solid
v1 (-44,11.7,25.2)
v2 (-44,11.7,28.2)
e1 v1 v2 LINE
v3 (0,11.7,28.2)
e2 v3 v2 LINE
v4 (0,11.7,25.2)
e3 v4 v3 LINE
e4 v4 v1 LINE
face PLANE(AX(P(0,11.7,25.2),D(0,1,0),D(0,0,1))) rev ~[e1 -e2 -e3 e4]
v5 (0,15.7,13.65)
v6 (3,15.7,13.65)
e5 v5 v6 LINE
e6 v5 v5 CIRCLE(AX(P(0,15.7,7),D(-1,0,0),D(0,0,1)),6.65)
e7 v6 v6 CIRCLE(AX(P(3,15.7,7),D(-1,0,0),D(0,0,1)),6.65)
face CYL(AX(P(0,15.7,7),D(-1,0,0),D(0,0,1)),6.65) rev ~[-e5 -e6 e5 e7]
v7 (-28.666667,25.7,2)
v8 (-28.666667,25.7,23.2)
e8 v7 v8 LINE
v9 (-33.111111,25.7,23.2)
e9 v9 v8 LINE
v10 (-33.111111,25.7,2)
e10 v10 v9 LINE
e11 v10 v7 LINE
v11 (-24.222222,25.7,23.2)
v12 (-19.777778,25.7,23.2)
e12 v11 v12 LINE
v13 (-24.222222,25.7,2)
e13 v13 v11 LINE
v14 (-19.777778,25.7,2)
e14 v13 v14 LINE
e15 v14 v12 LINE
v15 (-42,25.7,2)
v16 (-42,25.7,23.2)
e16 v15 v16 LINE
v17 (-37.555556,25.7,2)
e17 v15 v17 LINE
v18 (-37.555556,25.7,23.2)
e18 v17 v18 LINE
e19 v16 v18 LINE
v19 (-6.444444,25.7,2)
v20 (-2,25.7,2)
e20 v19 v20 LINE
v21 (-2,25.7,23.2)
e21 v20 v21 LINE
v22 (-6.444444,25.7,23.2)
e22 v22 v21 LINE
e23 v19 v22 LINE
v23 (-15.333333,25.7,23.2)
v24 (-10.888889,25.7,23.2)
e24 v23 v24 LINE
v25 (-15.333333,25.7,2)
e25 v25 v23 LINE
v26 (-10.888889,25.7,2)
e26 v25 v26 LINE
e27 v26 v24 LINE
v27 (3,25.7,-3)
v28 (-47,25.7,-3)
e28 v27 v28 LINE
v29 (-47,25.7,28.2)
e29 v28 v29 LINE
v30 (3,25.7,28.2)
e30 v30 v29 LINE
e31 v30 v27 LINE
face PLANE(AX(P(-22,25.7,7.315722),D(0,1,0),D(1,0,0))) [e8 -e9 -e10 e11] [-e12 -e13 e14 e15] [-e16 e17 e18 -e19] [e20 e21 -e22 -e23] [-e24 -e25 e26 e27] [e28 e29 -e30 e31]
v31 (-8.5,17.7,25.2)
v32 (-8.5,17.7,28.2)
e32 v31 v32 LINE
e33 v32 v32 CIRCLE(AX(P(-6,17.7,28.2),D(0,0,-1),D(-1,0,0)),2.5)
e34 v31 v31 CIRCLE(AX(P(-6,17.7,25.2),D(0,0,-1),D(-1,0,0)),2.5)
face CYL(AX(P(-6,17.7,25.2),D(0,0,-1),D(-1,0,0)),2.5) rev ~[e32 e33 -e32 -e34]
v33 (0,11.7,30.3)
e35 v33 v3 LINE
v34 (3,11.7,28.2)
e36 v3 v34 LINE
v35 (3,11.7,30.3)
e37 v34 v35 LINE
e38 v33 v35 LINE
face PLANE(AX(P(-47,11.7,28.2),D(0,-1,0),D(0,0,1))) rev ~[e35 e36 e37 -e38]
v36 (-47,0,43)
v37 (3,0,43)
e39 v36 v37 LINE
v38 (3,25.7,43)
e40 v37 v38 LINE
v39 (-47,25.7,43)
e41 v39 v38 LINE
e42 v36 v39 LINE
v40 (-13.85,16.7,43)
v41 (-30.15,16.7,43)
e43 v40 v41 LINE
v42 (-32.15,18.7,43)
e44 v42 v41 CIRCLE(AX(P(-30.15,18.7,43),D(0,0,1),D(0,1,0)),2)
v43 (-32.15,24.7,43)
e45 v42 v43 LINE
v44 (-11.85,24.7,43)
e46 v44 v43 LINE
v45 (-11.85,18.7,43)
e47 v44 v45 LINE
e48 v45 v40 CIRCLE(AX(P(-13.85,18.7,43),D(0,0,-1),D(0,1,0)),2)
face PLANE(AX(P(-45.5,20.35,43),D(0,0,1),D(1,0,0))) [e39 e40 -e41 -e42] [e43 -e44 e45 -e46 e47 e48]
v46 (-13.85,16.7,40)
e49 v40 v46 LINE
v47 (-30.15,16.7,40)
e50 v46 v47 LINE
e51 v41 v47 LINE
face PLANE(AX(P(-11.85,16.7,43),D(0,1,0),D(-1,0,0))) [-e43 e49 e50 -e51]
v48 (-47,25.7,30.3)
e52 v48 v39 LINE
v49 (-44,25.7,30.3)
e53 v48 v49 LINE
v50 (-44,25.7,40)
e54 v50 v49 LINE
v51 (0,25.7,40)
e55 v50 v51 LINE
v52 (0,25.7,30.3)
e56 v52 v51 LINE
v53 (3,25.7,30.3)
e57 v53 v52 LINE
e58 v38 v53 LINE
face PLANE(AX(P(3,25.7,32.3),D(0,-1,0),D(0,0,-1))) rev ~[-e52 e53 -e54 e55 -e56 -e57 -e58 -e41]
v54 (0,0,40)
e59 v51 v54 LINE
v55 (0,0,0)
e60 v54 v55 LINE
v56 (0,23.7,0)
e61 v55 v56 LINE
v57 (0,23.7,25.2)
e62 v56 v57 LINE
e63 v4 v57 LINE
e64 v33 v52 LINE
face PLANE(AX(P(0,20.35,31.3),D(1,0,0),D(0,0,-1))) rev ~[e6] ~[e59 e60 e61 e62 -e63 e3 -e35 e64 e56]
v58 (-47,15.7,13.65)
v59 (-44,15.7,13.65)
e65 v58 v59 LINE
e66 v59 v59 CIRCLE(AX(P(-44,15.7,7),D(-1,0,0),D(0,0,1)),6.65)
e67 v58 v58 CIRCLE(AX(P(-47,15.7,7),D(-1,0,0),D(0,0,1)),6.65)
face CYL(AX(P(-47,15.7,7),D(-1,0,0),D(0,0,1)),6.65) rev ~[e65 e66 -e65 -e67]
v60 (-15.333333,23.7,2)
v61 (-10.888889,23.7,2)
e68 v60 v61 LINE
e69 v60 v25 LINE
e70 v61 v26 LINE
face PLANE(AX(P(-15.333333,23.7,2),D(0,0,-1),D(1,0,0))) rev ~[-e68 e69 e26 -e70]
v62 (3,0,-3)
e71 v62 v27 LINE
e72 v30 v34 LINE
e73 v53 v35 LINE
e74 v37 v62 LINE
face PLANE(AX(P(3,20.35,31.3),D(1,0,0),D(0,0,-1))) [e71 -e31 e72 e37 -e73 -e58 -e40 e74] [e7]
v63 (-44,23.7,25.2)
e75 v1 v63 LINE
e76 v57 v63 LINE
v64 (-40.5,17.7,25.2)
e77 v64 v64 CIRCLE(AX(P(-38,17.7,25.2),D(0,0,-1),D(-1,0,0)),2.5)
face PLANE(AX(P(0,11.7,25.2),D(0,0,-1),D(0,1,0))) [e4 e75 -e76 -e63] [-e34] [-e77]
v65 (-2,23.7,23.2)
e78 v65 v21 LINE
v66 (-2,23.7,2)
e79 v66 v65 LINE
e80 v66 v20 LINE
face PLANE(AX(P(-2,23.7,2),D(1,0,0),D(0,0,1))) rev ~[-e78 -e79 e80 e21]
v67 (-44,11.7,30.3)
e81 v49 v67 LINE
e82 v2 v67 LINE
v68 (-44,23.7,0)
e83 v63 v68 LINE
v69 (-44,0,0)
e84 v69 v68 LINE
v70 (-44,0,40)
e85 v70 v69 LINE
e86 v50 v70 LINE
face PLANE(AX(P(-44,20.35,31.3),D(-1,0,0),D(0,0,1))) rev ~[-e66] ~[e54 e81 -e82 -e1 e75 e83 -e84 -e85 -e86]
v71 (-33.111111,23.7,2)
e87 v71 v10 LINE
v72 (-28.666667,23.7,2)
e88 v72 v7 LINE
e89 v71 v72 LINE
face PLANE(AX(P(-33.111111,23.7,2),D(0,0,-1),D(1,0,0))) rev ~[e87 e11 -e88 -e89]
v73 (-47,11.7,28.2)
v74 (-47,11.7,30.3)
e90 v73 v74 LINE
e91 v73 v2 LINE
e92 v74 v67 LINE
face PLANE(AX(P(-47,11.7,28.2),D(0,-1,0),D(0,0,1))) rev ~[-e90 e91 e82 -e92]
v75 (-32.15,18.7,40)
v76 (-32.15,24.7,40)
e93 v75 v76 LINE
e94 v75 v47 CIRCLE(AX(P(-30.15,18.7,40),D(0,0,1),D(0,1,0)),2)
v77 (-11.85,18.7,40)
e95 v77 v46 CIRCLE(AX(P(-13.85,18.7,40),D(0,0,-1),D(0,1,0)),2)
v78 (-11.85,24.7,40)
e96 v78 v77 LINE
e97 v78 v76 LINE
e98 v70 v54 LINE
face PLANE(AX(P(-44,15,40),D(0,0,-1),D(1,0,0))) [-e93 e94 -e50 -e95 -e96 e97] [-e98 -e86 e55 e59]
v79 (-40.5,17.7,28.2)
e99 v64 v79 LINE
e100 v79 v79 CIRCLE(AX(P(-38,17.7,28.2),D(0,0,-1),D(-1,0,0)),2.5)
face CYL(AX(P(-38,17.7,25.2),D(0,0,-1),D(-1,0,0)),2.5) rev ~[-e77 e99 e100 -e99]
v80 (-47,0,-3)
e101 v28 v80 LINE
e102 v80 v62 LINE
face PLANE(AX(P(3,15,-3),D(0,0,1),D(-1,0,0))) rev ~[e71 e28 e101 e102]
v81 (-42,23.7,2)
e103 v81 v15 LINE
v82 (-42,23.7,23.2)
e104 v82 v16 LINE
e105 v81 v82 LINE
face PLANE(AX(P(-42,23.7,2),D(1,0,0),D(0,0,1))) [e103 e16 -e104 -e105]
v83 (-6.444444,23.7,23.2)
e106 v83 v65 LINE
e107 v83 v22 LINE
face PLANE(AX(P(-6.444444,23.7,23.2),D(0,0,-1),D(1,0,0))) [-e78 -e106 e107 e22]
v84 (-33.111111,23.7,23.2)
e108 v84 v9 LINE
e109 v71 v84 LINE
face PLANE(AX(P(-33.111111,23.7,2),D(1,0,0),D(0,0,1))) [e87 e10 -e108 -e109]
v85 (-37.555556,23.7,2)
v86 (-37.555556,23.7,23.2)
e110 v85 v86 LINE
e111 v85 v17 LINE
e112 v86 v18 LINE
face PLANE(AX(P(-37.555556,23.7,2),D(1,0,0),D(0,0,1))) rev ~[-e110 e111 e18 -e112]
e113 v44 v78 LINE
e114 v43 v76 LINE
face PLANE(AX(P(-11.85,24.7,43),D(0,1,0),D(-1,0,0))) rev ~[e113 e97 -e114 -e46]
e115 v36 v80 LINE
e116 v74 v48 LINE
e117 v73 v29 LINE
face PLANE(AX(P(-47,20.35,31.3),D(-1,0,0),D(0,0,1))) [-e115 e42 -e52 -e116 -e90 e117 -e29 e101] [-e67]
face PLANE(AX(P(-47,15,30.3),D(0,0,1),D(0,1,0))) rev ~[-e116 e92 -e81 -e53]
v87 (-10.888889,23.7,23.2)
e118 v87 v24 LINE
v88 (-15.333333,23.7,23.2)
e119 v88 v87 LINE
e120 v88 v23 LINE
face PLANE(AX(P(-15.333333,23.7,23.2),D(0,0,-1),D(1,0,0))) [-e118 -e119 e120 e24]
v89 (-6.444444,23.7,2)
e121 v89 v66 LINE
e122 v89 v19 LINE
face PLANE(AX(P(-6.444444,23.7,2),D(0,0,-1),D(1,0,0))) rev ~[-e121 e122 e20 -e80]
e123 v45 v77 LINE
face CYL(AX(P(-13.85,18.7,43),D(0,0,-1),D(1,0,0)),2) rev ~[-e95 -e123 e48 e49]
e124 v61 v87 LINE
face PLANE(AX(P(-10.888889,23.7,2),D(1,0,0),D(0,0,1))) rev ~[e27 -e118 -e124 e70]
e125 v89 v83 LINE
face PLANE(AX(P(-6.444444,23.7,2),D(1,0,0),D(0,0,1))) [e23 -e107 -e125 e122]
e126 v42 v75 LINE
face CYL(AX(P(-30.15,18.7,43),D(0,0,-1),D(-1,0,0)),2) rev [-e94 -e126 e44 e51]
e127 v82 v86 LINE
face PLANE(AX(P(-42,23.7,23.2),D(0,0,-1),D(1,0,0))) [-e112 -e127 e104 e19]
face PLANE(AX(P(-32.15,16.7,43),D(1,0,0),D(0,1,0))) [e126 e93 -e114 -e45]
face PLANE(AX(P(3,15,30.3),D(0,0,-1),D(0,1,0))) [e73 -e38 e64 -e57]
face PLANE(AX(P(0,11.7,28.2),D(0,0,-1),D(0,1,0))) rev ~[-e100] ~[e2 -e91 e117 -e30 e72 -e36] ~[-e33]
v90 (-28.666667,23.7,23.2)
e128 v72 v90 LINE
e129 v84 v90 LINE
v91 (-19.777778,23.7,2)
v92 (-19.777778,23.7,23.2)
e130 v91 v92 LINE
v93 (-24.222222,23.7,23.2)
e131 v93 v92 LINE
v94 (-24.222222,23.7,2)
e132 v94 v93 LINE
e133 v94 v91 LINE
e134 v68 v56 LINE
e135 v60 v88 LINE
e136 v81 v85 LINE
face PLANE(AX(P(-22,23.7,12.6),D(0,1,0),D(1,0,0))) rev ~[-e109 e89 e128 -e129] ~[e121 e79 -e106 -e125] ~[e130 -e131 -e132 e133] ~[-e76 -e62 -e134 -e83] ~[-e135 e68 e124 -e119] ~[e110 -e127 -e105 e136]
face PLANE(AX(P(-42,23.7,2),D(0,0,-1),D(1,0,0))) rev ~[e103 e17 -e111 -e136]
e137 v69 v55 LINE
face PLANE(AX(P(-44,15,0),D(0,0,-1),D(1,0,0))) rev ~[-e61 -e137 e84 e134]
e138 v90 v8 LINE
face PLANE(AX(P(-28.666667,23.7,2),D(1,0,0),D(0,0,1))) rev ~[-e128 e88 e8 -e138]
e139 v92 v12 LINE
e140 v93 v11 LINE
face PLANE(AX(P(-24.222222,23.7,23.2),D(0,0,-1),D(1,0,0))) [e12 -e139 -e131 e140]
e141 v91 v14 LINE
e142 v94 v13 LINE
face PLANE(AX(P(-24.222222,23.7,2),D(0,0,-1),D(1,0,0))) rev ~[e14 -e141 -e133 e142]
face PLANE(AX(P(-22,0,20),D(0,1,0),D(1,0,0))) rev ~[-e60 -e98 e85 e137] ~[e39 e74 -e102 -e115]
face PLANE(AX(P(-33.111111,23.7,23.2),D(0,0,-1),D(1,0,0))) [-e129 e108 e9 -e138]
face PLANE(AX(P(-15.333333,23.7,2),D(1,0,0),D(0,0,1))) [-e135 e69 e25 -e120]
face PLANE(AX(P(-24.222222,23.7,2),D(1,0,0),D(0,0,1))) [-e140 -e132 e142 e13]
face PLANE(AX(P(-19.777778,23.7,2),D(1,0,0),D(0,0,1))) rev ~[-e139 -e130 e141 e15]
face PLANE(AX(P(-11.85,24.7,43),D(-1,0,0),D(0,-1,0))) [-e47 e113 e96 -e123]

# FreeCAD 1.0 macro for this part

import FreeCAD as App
import Part
import Sketcher
Q = App.Units.Quantity


def edges_at(feature, points):
    """Names of the edges that pass closest to the given points."""
    edges = feature.Shape.Edges
    near = lambda p: min(range(len(edges)), key=lambda i: edges[i].distToShape(Part.Vertex(*p))[0])
    return sorted({f"Edge{near(p) + 1}" for p in points})


def add_polygon(sketch, points):
    """Adds a closed chain of lines whose ends are joined by coincident constraints."""
    first, n = sketch.GeometryCount, len(points)
    for a, b in zip(points, points[1:] + points[:1]):
        sketch.addGeometry(Part.LineSegment(App.Vector(*a, 0), App.Vector(*b, 0)), False)
    for i in range(n):
        sketch.addConstraint(Sketcher.Constraint("Coincident", first + i, 2, first + (i + 1) % n, 1))

doc = App.newDocument("Part")
params = doc.addObject("Spreadsheet::Sheet", "Params")
for row, (alias, value) in enumerate([
    ("sketch1_width", "50 mm"),
    ("sketch1_width2", "44 mm"),
    ("sketch1_height", "46 mm"),
    ("sketch1_height2", "40 mm"),
    ("pad1_length", "15 mm"),
    ("sketch2_width", "44 mm"),
    ("sketch2_height", "3 mm"),
    ("pad2_length", "10.7 mm"),
    ("sketch3_height", "8 mm"),
    ("sketch3_width", "20.3 mm"),
    ("sketch4_width", "3 mm"),
    ("sketch4_height", "10.7 mm"),
    ("pad3_length", "10.7 mm"),
    ("sketch5_width", "3 mm"),
    ("sketch5_width2", "44 mm"),
    ("sketch5_height", "28.2 mm"),
    ("sketch5_height2", "31.2 mm"),
    ("pad4_length", "10.7 mm"),
    ("sketch6_diameter", "13.3 mm"),
    ("sketch7_diameter", "13.3 mm"),
    ("sketch8_width", "50 mm"),
    ("sketch8_height", "31.2 mm"),
    ("pad5_length", "2 mm"),
    ("sketch9_width", "12 mm"),
    ("sketch9_height", "3 mm"),
    ("pad6_length", "44 mm"),
    ("sketch10_diameter", "5 mm"),
    ("sketch11_diameter", "5 mm"),
    ("fillet_radius", "2 mm"),
    ("sketch12_height", "2 mm"),
    ("sketch12_width", "10.7 mm"),
    ("pad7_length", "3 mm"),
    ("sketch13_width", "3.3 mm"),
    ("sketch13_height", "2.1 mm"),
    ("pocket6_length", "50 mm"),
    ("sketch14_height", "2 mm"),
    ("sketch14_width", "10.7 mm"),
    ("pad8_length", "3 mm"),
    ("sketch15_height", "21.2 mm"),
    ("sketch16_height", "21.2 mm"),
    ("sketch17_height", "21.2 mm"),
    ("sketch18_height", "21.2 mm"),
    ("sketch19_height", "21.2 mm"),
], start=1):
    params.set(f"A{row}", alias)
    params.set(f"B{row}", "=" + value)
    params.setAlias(f"B{row}", alias)

body = doc.addObject("PartDesign::Body", "Body")

sketch1 = body.newObject("Sketcher::SketchObject", "Sketch")
sketch1.AttachmentSupport = (doc.getObject("XZ_Plane"), [""])
sketch1.MapMode = "FlatFace"
add_polygon(sketch1, [(-47, -3), (-47, 43), (3, 43), (3, -3)])
add_polygon(sketch1, [(0, 40), (-44, 40), (-44, 0), (0, 0)])
sketch1.addConstraint([
    Sketcher.Constraint("Vertical", 0),
    Sketcher.Constraint("Horizontal", 1),
    Sketcher.Constraint("Vertical", 2),
    Sketcher.Constraint("Horizontal", 3),
    Sketcher.Constraint("Horizontal", 4),
    Sketcher.Constraint("Vertical", 5),
    Sketcher.Constraint("Horizontal", 6),
    Sketcher.Constraint("Vertical", 7),
    Sketcher.Constraint("Coincident", 6, 2, -1, 1),
    Sketcher.Constraint("DistanceX", 1, 1, 1, 2, Q("50 mm")),
    Sketcher.Constraint("DistanceX", 4, 2, 4, 1, Q("44 mm")),
    Sketcher.Constraint("DistanceY", 0, 1, 0, 2, Q("46 mm")),
    Sketcher.Constraint("DistanceY", 5, 2, 5, 1, Q("40 mm")),
    Sketcher.Constraint("DistanceX", 0, 2, -1, 1, Q("47 mm")),
    Sketcher.Constraint("DistanceY", -1, 1, 0, 2, Q("43 mm")),
])
sketch1.setExpression("Constraints[17]", "Params.sketch1_width")
sketch1.setExpression("Constraints[18]", "Params.sketch1_width2")
sketch1.setExpression("Constraints[19]", "Params.sketch1_height")
sketch1.setExpression("Constraints[20]", "Params.sketch1_height2")
pad1 = body.newObject("PartDesign::Pad", "Pad")
pad1.Profile = sketch1
pad1.setExpression("Length", "Params.pad1_length")
pad1.Reversed = True

sketch2 = body.newObject("Sketcher::SketchObject", "Sketch001")
sketch2.AttachmentSupport = (doc.getObject("XZ_Plane"), [""])
sketch2.MapMode = "FlatFace"
sketch2.AttachmentOffset = App.Placement(App.Vector(0, 0, -15), App.Rotation())
add_polygon(sketch2, [(-44, 40), (-44, 43), (0, 43), (0, 40)])
sketch2.addConstraint([
    Sketcher.Constraint("Vertical", 0),
    Sketcher.Constraint("Horizontal", 1),
    Sketcher.Constraint("Vertical", 2),
    Sketcher.Constraint("Horizontal", 3),
    Sketcher.Constraint("PointOnObject", 1, 2, -2),
    Sketcher.Constraint("DistanceX", 1, 1, 1, 2, Q("44 mm")),
    Sketcher.Constraint("DistanceY", 0, 1, 0, 2, Q("3 mm")),
    Sketcher.Constraint("DistanceY", -1, 1, 0, 2, Q("43 mm")),
])
sketch2.setExpression("Constraints[9]", "Params.sketch2_width")
sketch2.setExpression("Constraints[10]", "Params.sketch2_height")
pad2 = body.newObject("PartDesign::Pad", "Pad001")
pad2.Profile = sketch2
pad2.setExpression("Length", "Params.pad2_length")
pad2.Reversed = True

sketch3 = body.newObject("Sketcher::SketchObject", "Sketch002")
sketch3.AttachmentSupport = (doc.getObject("XY_Plane"), [""])
sketch3.MapMode = "FlatFace"
sketch3.AttachmentOffset = App.Placement(App.Vector(0, 0, 43), App.Rotation())
add_polygon(sketch3, [(-12, 25), (-32, 25), (-32, 17), (-12, 17)])
sketch3.addConstraint([
    Sketcher.Constraint("Horizontal", 0),
    Sketcher.Constraint("Vertical", 1),
    Sketcher.Constraint("Horizontal", 2),
    Sketcher.Constraint("Vertical", 3),
    Sketcher.Constraint("DistanceY", 1, 2, 1, 1, Q("8 mm")),
    Sketcher.Constraint("DistanceX", 0, 2, 0, 1, Q("20.3 mm")),
    Sketcher.Constraint("DistanceY", -1, 1, 0, 2, Q("24.7 mm")),
    Sketcher.Constraint("DistanceX", 0, 2, -1, 1, Q("32.15 mm")),
])
sketch3.setExpression("Constraints[8]", "Params.sketch3_height")
sketch3.setExpression("Constraints[9]", "Params.sketch3_width")
pocket1 = body.newObject("PartDesign::Pocket", "Pocket")
pocket1.Profile = sketch3
pocket1.Type = "UpToFirst"

sketch4 = body.newObject("Sketcher::SketchObject", "Sketch003")
sketch4.AttachmentSupport = (doc.getObject("XY_Plane"), [""])
sketch4.MapMode = "FlatFace"
sketch4.AttachmentOffset = App.Placement(App.Vector(0, 0, 43), App.Rotation())
add_polygon(sketch4, [(-47, 25.7), (-47, 15), (-44, 15), (-44, 25.7)])
add_polygon(sketch4, [(0, 25.7), (0, 15), (3, 15), (3, 25.7)])
sketch4.addConstraint([
    Sketcher.Constraint("Vertical", 0),
    Sketcher.Constraint("Horizontal", 1),
    Sketcher.Constraint("Vertical", 2),
    Sketcher.Constraint("Horizontal", 3),
    Sketcher.Constraint("Vertical", 4),
    Sketcher.Constraint("Horizontal", 5),
    Sketcher.Constraint("Vertical", 6),
    Sketcher.Constraint("Horizontal", 7),
    Sketcher.Constraint("PointOnObject", 4, 2, -2),
    Sketcher.Constraint("Horizontal", 1, 2, 4, 2),
    Sketcher.Constraint("Horizontal", 3, 2, 6, 2),
    Sketcher.Constraint("Equal", 3, 5),
    Sketcher.Constraint("DistanceX", 1, 1, 1, 2, Q("3 mm")),
    Sketcher.Constraint("DistanceY", 0, 2, 0, 1, Q("10.7 mm")),
    Sketcher.Constraint("DistanceX", 0, 2, -1, 1, Q("47 mm")),
    Sketcher.Constraint("DistanceY", -1, 1, 0, 2, Q("15 mm")),
])
sketch4.setExpression("Constraints[20]", "Params.sketch4_width")
sketch4.setExpression("Constraints[21]", "Params.sketch4_height")
pad3 = body.newObject("PartDesign::Pad", "Pad002")
pad3.Profile = sketch4
pad3.setExpression("Length", "Params.pad3_length")
pad3.Reversed = True

sketch5 = body.newObject("Sketcher::SketchObject", "Sketch004")
sketch5.AttachmentSupport = (doc.getObject("XZ_Plane"), [""])
sketch5.MapMode = "FlatFace"
sketch5.AttachmentOffset = App.Placement(App.Vector(0, 0, -15), App.Rotation())
add_polygon(sketch5, [(-47, 28.2), (-44, 28.2), (-44, 0), (0, 0), (0, 28.2), (3, 28.2), (3, -3), (-47, -3)])
sketch5.addConstraint([
    Sketcher.Constraint("Horizontal", 0),
    Sketcher.Constraint("Vertical", 1),
    Sketcher.Constraint("Horizontal", 2),
    Sketcher.Constraint("Vertical", 3),
    Sketcher.Constraint("Horizontal", 4),
    Sketcher.Constraint("Vertical", 5),
    Sketcher.Constraint("Horizontal", 6),
    Sketcher.Constraint("Vertical", 7),
    Sketcher.Constraint("Coincident", 2, 2, -1, 1),
    Sketcher.Constraint("Horizontal", 0, 2, 3, 2),
    Sketcher.Constraint("Equal", 0, 4),
    Sketcher.Constraint("DistanceX", 0, 1, 0, 2, Q("3 mm")),
    Sketcher.Constraint("DistanceX", 2, 1, 2, 2, Q("44 mm")),
    Sketcher.Constraint("DistanceY", 1, 2, 1, 1, Q("28.2 mm")),
    Sketcher.Constraint("DistanceY", 5, 2, 5, 1, Q("31.2 mm")),
])
sketch5.setExpression("Constraints[19]", "Params.sketch5_width")
sketch5.setExpression("Constraints[20]", "Params.sketch5_width2")
sketch5.setExpression("Constraints[21]", "Params.sketch5_height")
sketch5.setExpression("Constraints[22]", "Params.sketch5_height2")
pad4 = body.newObject("PartDesign::Pad", "Pad003")
pad4.Profile = sketch5
pad4.setExpression("Length", "Params.pad4_length")
pad4.Reversed = True

sketch6 = body.newObject("Sketcher::SketchObject", "Sketch005")
sketch6.AttachmentSupport = (doc.getObject("YZ_Plane"), [""])
sketch6.MapMode = "FlatFace"
sketch6.AttachmentOffset = App.Placement(App.Vector(0, 0, -47), App.Rotation())
sketch6.addGeometry(Part.Circle(App.Vector(16, 7, 0), App.Vector(0, 0, 1), 7), False)
sketch6.addConstraint([
    Sketcher.Constraint("Diameter", 0, Q("13.3 mm")),
    Sketcher.Constraint("DistanceY", -1, 1, 0, 3, Q("7 mm")),
    Sketcher.Constraint("DistanceX", -1, 1, 0, 3, Q("15.7 mm")),
])
sketch6.setExpression("Constraints[0]", "Params.sketch6_diameter")
pocket2 = body.newObject("PartDesign::Pocket", "Pocket001")
pocket2.Profile = sketch6
pocket2.Type = "UpToFirst"
pocket2.Reversed = True

sketch7 = body.newObject("Sketcher::SketchObject", "Sketch006")
sketch7.AttachmentSupport = (doc.getObject("YZ_Plane"), [""])
sketch7.MapMode = "FlatFace"
sketch7.addGeometry(Part.Circle(App.Vector(16, 7, 0), App.Vector(0, 0, 1), 7), False)
sketch7.addConstraint([
    Sketcher.Constraint("Diameter", 0, Q("13.3 mm")),
    Sketcher.Constraint("DistanceY", -1, 1, 0, 3, Q("7 mm")),
    Sketcher.Constraint("DistanceX", -1, 1, 0, 3, Q("15.7 mm")),
])
sketch7.setExpression("Constraints[0]", "Params.sketch7_diameter")
pocket3 = body.newObject("PartDesign::Pocket", "Pocket002")
pocket3.Profile = sketch7
pocket3.Type = "UpToFirst"
pocket3.Reversed = True

sketch8 = body.newObject("Sketcher::SketchObject", "Sketch007")
sketch8.AttachmentSupport = (doc.getObject("XZ_Plane"), [""])
sketch8.MapMode = "FlatFace"
sketch8.AttachmentOffset = App.Placement(App.Vector(0, 0, -25.7), App.Rotation())
add_polygon(sketch8, [(-47, -3), (-47, 28), (3, 28), (3, -3)])
sketch8.addConstraint([
    Sketcher.Constraint("Vertical", 0),
    Sketcher.Constraint("Horizontal", 1),
    Sketcher.Constraint("Vertical", 2),
    Sketcher.Constraint("Horizontal", 3),
    Sketcher.Constraint("DistanceX", 1, 1, 1, 2, Q("50 mm")),
    Sketcher.Constraint("DistanceY", 0, 1, 0, 2, Q("31.2 mm")),
    Sketcher.Constraint("DistanceX", 0, 2, -1, 1, Q("47 mm")),
    Sketcher.Constraint("DistanceY", 2, 2, -1, 1, Q("3 mm")),
])
sketch8.setExpression("Constraints[8]", "Params.sketch8_width")
sketch8.setExpression("Constraints[9]", "Params.sketch8_height")
pad5 = body.newObject("PartDesign::Pad", "Pad004")
pad5.Profile = sketch8
pad5.setExpression("Length", "Params.pad5_length")

sketch9 = body.newObject("Sketcher::SketchObject", "Sketch008")
sketch9.AttachmentSupport = (doc.getObject("YZ_Plane"), [""])
sketch9.MapMode = "FlatFace"
add_polygon(sketch9, [(23.7, 25.2), (11.7, 25.2), (11.7, 28.2), (23.7, 28.2)])
sketch9.addConstraint([
    Sketcher.Constraint("Horizontal", 0),
    Sketcher.Constraint("Vertical", 1),
    Sketcher.Constraint("Horizontal", 2),
    Sketcher.Constraint("Vertical", 3),
    Sketcher.Constraint("DistanceX", 0, 2, 0, 1, Q("12 mm")),
    Sketcher.Constraint("DistanceY", 1, 1, 1, 2, Q("3 mm")),
    Sketcher.Constraint("DistanceX", -1, 1, 0, 2, Q("11.7 mm")),
    Sketcher.Constraint("DistanceY", -1, 1, 0, 2, Q("25.2 mm")),
])
sketch9.setExpression("Constraints[8]", "Params.sketch9_width")
sketch9.setExpression("Constraints[9]", "Params.sketch9_height")
pad6 = body.newObject("PartDesign::Pad", "Pad005")
pad6.Profile = sketch9
pad6.setExpression("Length", "Params.pad6_length")
pad6.Reversed = True

sketch10 = body.newObject("Sketcher::SketchObject", "Sketch009")
sketch10.AttachmentSupport = (doc.getObject("XY_Plane"), [""])
sketch10.MapMode = "FlatFace"
sketch10.AttachmentOffset = App.Placement(App.Vector(0, 0, 25.2), App.Rotation())
sketch10.addGeometry(Part.Circle(App.Vector(-6, 17.7, 0), App.Vector(0, 0, 1), 2.5), False)
sketch10.addConstraint([
    Sketcher.Constraint("Diameter", 0, Q("5 mm")),
    Sketcher.Constraint("DistanceX", 0, 3, -1, 1, Q("6 mm")),
    Sketcher.Constraint("DistanceY", -1, 1, 0, 3, Q("17.7 mm")),
])
sketch10.setExpression("Constraints[0]", "Params.sketch10_diameter")
pocket4 = body.newObject("PartDesign::Pocket", "Pocket003")
pocket4.Profile = sketch10
pocket4.Type = "UpToFirst"
pocket4.Reversed = True

sketch11 = body.newObject("Sketcher::SketchObject", "Sketch010")
sketch11.AttachmentSupport = (doc.getObject("XY_Plane"), [""])
sketch11.MapMode = "FlatFace"
sketch11.AttachmentOffset = App.Placement(App.Vector(0, 0, 25.2), App.Rotation())
sketch11.addGeometry(Part.Circle(App.Vector(-38, 17.7, 0), App.Vector(0, 0, 1), 2.5), False)
sketch11.addConstraint([
    Sketcher.Constraint("Diameter", 0, Q("5 mm")),
    Sketcher.Constraint("DistanceX", 0, 3, -1, 1, Q("38 mm")),
    Sketcher.Constraint("DistanceY", -1, 1, 0, 3, Q("17.7 mm")),
])
sketch11.setExpression("Constraints[0]", "Params.sketch11_diameter")
pocket5 = body.newObject("PartDesign::Pocket", "Pocket004")
pocket5.Profile = sketch11
pocket5.Type = "UpToFirst"
pocket5.Reversed = True
doc.recompute()

fillet = body.newObject("PartDesign::Fillet", "Fillet")
fillet.Base = (pocket5, edges_at(pocket5, [(-11.85, 16.7, 41.5), (-32.15, 16.7, 41.5)]))
fillet.setExpression("Radius", "Params.fillet_radius")

sketch12 = body.newObject("Sketcher::SketchObject", "Sketch011")
sketch12.AttachmentSupport = (doc.getObject("YZ_Plane"), [""])
sketch12.MapMode = "FlatFace"
sketch12.AttachmentOffset = App.Placement(App.Vector(0, 0, -47), App.Rotation())
add_polygon(sketch12, [(25.7, 30.3), (15, 30.3), (15, 32.3), (25.7, 32.3)])
sketch12.addConstraint([
    Sketcher.Constraint("Horizontal", 0),
    Sketcher.Constraint("Vertical", 1),
    Sketcher.Constraint("Horizontal", 2),
    Sketcher.Constraint("Vertical", 3),
    Sketcher.Constraint("DistanceY", 1, 1, 1, 2, Q("2 mm")),
    Sketcher.Constraint("DistanceX", 0, 2, 0, 1, Q("10.7 mm")),
    Sketcher.Constraint("DistanceX", -1, 1, 0, 2, Q("15 mm")),
    Sketcher.Constraint("DistanceY", -1, 1, 0, 2, Q("30.3 mm")),
])
sketch12.setExpression("Constraints[8]", "Params.sketch12_height")
sketch12.setExpression("Constraints[9]", "Params.sketch12_width")
pad7 = body.newObject("PartDesign::Pad", "Pad006")
pad7.Profile = sketch12
pad7.setExpression("Length", "Params.pad7_length")

sketch13 = body.newObject("Sketcher::SketchObject", "Sketch012")
sketch13.AttachmentSupport = (doc.getObject("YZ_Plane"), [""])
sketch13.MapMode = "FlatFace"
sketch13.AttachmentOffset = App.Placement(App.Vector(0, 0, -47), App.Rotation())
add_polygon(sketch13, [(15, 28.2), (11.7, 28.2), (11.7, 30.3), (15, 30.3)])
sketch13.addConstraint([
    Sketcher.Constraint("Horizontal", 0),
    Sketcher.Constraint("Vertical", 1),
    Sketcher.Constraint("Horizontal", 2),
    Sketcher.Constraint("Vertical", 3),
    Sketcher.Constraint("DistanceX", 0, 2, 0, 1, Q("3.3 mm")),
    Sketcher.Constraint("DistanceY", 1, 1, 1, 2, Q("2.1 mm")),
    Sketcher.Constraint("DistanceX", -1, 1, 2, 2, Q("15 mm")),
    Sketcher.Constraint("DistanceY", -1, 1, 0, 2, Q("28.2 mm")),
])
sketch13.setExpression("Constraints[8]", "Params.sketch13_width")
sketch13.setExpression("Constraints[9]", "Params.sketch13_height")
pocket6 = body.newObject("PartDesign::Pocket", "Pocket005")
pocket6.Profile = sketch13
pocket6.setExpression("Length", "Params.pocket6_length")
pocket6.Reversed = True

sketch14 = body.newObject("Sketcher::SketchObject", "Sketch013")
sketch14.AttachmentSupport = (doc.getObject("YZ_Plane"), [""])
sketch14.MapMode = "FlatFace"
sketch14.AttachmentOffset = App.Placement(App.Vector(0, 0, 3), App.Rotation())
add_polygon(sketch14, [(25.7, 32.3), (15, 32.3), (15, 30.3), (25.7, 30.3)])
sketch14.addConstraint([
    Sketcher.Constraint("Horizontal", 0),
    Sketcher.Constraint("Vertical", 1),
    Sketcher.Constraint("Horizontal", 2),
    Sketcher.Constraint("Vertical", 3),
    Sketcher.Constraint("DistanceY", 1, 2, 1, 1, Q("2 mm")),
    Sketcher.Constraint("DistanceX", 0, 2, 0, 1, Q("10.7 mm")),
    Sketcher.Constraint("DistanceX", -1, 1, 0, 2, Q("15 mm")),
    Sketcher.Constraint("DistanceY", -1, 1, 0, 2, Q("32.3 mm")),
])
sketch14.setExpression("Constraints[8]", "Params.sketch14_height")
sketch14.setExpression("Constraints[9]", "Params.sketch14_width")
pad8 = body.newObject("PartDesign::Pad", "Pad007")
pad8.Profile = sketch14
pad8.setExpression("Length", "Params.pad8_length")
pad8.Reversed = True

sketch15 = body.newObject("Sketcher::SketchObject", "Sketch014")
sketch15.AttachmentSupport = (doc.getObject("XZ_Plane"), [""])
sketch15.MapMode = "FlatFace"
sketch15.AttachmentOffset = App.Placement(App.Vector(0, 0, -23.7), App.Rotation())
add_polygon(sketch15, [(-42, 23.2), (-42, 2), (-37.6, 2), (-37.6, 23.2)])
sketch15.addConstraint([
    Sketcher.Constraint("Vertical", 0),
    Sketcher.Constraint("Horizontal", 1),
    Sketcher.Constraint("Vertical", 2),
    Sketcher.Constraint("Horizontal", 3),
    Sketcher.Constraint("DistanceY", 0, 2, 0, 1, Q("21.2 mm")),
    Sketcher.Constraint("DistanceX", 0, 2, -1, 1, Q("42 mm")),
    Sketcher.Constraint("DistanceY", -1, 1, 0, 2, Q("2 mm")),
    Sketcher.Constraint("DistanceX", 1, 1, 1, 2, Q("4.444444 mm")),
])
sketch15.setExpression("Constraints[8]", "Params.sketch15_height")
pocket7 = body.newObject("PartDesign::Pocket", "Pocket006")
pocket7.Profile = sketch15
pocket7.Type = "UpToFirst"

sketch16 = body.newObject("Sketcher::SketchObject", "Sketch015")
sketch16.AttachmentSupport = (doc.getObject("XZ_Plane"), [""])
sketch16.MapMode = "FlatFace"
sketch16.AttachmentOffset = App.Placement(App.Vector(0, 0, -23.7), App.Rotation())
add_polygon(sketch16, [(-33.1, 23.2), (-33.1, 2), (-28.7, 2), (-28.7, 23.2)])
sketch16.addConstraint([
    Sketcher.Constraint("Vertical", 0),
    Sketcher.Constraint("Horizontal", 1),
    Sketcher.Constraint("Vertical", 2),
    Sketcher.Constraint("Horizontal", 3),
    Sketcher.Constraint("DistanceY", 0, 2, 0, 1, Q("21.2 mm")),
    Sketcher.Constraint("DistanceY", -1, 1, 0, 2, Q("2 mm")),
    Sketcher.Constraint("DistanceX", 1, 1, 1, 2, Q("4.444444 mm")),
    Sketcher.Constraint("DistanceX", 0, 2, -1, 1, Q("33.111111 mm")),
])
sketch16.setExpression("Constraints[8]", "Params.sketch16_height")
pocket8 = body.newObject("PartDesign::Pocket", "Pocket007")
pocket8.Profile = sketch16
pocket8.Type = "UpToFirst"

sketch17 = body.newObject("Sketcher::SketchObject", "Sketch016")
sketch17.AttachmentSupport = (doc.getObject("XZ_Plane"), [""])
sketch17.MapMode = "FlatFace"
sketch17.AttachmentOffset = App.Placement(App.Vector(0, 0, -23.7), App.Rotation())
add_polygon(sketch17, [(-24.2, 23.2), (-24.2, 2), (-19.8, 2), (-19.8, 23.2)])
sketch17.addConstraint([
    Sketcher.Constraint("Vertical", 0),
    Sketcher.Constraint("Horizontal", 1),
    Sketcher.Constraint("Vertical", 2),
    Sketcher.Constraint("Horizontal", 3),
    Sketcher.Constraint("DistanceY", 0, 2, 0, 1, Q("21.2 mm")),
    Sketcher.Constraint("DistanceY", -1, 1, 0, 2, Q("2 mm")),
    Sketcher.Constraint("DistanceX", 1, 1, 1, 2, Q("4.444444 mm")),
    Sketcher.Constraint("DistanceX", 0, 2, -1, 1, Q("24.222222 mm")),
])
sketch17.setExpression("Constraints[8]", "Params.sketch17_height")
pocket9 = body.newObject("PartDesign::Pocket", "Pocket008")
pocket9.Profile = sketch17
pocket9.Type = "UpToFirst"

sketch18 = body.newObject("Sketcher::SketchObject", "Sketch017")
sketch18.AttachmentSupport = (doc.getObject("XZ_Plane"), [""])
sketch18.MapMode = "FlatFace"
sketch18.AttachmentOffset = App.Placement(App.Vector(0, 0, -23.7), App.Rotation())
add_polygon(sketch18, [(-15.3, 23.2), (-15.3, 2), (-10.9, 2), (-10.9, 23.2)])
sketch18.addConstraint([
    Sketcher.Constraint("Vertical", 0),
    Sketcher.Constraint("Horizontal", 1),
    Sketcher.Constraint("Vertical", 2),
    Sketcher.Constraint("Horizontal", 3),
    Sketcher.Constraint("DistanceY", 0, 2, 0, 1, Q("21.2 mm")),
    Sketcher.Constraint("DistanceY", -1, 1, 0, 2, Q("2 mm")),
    Sketcher.Constraint("DistanceX", 1, 1, 1, 2, Q("4.444444 mm")),
    Sketcher.Constraint("DistanceX", 1, 2, -1, 1, Q("10.888889 mm")),
])
sketch18.setExpression("Constraints[8]", "Params.sketch18_height")
pocket10 = body.newObject("PartDesign::Pocket", "Pocket009")
pocket10.Profile = sketch18
pocket10.Type = "UpToFirst"

sketch19 = body.newObject("Sketcher::SketchObject", "Sketch018")
sketch19.AttachmentSupport = (doc.getObject("XZ_Plane"), [""])
sketch19.MapMode = "FlatFace"
sketch19.AttachmentOffset = App.Placement(App.Vector(0, 0, -23.7), App.Rotation())
add_polygon(sketch19, [(-6.4, 23.2), (-6.4, 2), (-2, 2), (-2, 23.2)])
sketch19.addConstraint([
    Sketcher.Constraint("Vertical", 0),
    Sketcher.Constraint("Horizontal", 1),
    Sketcher.Constraint("Vertical", 2),
    Sketcher.Constraint("Horizontal", 3),
    Sketcher.Constraint("DistanceY", 0, 2, 0, 1, Q("21.2 mm")),
    Sketcher.Constraint("DistanceY", -1, 1, 0, 2, Q("2 mm")),
    Sketcher.Constraint("DistanceX", 1, 2, -1, 1, Q("2 mm")),
    Sketcher.Constraint("DistanceX", 1, 1, 1, 2, Q("4.444444 mm")),
])
sketch19.setExpression("Constraints[8]", "Params.sketch19_height")
pocket11 = body.newObject("PartDesign::Pocket", "Pocket010")
pocket11.Profile = sketch19
pocket11.Type = "UpToFirst"

doc.recompute()
